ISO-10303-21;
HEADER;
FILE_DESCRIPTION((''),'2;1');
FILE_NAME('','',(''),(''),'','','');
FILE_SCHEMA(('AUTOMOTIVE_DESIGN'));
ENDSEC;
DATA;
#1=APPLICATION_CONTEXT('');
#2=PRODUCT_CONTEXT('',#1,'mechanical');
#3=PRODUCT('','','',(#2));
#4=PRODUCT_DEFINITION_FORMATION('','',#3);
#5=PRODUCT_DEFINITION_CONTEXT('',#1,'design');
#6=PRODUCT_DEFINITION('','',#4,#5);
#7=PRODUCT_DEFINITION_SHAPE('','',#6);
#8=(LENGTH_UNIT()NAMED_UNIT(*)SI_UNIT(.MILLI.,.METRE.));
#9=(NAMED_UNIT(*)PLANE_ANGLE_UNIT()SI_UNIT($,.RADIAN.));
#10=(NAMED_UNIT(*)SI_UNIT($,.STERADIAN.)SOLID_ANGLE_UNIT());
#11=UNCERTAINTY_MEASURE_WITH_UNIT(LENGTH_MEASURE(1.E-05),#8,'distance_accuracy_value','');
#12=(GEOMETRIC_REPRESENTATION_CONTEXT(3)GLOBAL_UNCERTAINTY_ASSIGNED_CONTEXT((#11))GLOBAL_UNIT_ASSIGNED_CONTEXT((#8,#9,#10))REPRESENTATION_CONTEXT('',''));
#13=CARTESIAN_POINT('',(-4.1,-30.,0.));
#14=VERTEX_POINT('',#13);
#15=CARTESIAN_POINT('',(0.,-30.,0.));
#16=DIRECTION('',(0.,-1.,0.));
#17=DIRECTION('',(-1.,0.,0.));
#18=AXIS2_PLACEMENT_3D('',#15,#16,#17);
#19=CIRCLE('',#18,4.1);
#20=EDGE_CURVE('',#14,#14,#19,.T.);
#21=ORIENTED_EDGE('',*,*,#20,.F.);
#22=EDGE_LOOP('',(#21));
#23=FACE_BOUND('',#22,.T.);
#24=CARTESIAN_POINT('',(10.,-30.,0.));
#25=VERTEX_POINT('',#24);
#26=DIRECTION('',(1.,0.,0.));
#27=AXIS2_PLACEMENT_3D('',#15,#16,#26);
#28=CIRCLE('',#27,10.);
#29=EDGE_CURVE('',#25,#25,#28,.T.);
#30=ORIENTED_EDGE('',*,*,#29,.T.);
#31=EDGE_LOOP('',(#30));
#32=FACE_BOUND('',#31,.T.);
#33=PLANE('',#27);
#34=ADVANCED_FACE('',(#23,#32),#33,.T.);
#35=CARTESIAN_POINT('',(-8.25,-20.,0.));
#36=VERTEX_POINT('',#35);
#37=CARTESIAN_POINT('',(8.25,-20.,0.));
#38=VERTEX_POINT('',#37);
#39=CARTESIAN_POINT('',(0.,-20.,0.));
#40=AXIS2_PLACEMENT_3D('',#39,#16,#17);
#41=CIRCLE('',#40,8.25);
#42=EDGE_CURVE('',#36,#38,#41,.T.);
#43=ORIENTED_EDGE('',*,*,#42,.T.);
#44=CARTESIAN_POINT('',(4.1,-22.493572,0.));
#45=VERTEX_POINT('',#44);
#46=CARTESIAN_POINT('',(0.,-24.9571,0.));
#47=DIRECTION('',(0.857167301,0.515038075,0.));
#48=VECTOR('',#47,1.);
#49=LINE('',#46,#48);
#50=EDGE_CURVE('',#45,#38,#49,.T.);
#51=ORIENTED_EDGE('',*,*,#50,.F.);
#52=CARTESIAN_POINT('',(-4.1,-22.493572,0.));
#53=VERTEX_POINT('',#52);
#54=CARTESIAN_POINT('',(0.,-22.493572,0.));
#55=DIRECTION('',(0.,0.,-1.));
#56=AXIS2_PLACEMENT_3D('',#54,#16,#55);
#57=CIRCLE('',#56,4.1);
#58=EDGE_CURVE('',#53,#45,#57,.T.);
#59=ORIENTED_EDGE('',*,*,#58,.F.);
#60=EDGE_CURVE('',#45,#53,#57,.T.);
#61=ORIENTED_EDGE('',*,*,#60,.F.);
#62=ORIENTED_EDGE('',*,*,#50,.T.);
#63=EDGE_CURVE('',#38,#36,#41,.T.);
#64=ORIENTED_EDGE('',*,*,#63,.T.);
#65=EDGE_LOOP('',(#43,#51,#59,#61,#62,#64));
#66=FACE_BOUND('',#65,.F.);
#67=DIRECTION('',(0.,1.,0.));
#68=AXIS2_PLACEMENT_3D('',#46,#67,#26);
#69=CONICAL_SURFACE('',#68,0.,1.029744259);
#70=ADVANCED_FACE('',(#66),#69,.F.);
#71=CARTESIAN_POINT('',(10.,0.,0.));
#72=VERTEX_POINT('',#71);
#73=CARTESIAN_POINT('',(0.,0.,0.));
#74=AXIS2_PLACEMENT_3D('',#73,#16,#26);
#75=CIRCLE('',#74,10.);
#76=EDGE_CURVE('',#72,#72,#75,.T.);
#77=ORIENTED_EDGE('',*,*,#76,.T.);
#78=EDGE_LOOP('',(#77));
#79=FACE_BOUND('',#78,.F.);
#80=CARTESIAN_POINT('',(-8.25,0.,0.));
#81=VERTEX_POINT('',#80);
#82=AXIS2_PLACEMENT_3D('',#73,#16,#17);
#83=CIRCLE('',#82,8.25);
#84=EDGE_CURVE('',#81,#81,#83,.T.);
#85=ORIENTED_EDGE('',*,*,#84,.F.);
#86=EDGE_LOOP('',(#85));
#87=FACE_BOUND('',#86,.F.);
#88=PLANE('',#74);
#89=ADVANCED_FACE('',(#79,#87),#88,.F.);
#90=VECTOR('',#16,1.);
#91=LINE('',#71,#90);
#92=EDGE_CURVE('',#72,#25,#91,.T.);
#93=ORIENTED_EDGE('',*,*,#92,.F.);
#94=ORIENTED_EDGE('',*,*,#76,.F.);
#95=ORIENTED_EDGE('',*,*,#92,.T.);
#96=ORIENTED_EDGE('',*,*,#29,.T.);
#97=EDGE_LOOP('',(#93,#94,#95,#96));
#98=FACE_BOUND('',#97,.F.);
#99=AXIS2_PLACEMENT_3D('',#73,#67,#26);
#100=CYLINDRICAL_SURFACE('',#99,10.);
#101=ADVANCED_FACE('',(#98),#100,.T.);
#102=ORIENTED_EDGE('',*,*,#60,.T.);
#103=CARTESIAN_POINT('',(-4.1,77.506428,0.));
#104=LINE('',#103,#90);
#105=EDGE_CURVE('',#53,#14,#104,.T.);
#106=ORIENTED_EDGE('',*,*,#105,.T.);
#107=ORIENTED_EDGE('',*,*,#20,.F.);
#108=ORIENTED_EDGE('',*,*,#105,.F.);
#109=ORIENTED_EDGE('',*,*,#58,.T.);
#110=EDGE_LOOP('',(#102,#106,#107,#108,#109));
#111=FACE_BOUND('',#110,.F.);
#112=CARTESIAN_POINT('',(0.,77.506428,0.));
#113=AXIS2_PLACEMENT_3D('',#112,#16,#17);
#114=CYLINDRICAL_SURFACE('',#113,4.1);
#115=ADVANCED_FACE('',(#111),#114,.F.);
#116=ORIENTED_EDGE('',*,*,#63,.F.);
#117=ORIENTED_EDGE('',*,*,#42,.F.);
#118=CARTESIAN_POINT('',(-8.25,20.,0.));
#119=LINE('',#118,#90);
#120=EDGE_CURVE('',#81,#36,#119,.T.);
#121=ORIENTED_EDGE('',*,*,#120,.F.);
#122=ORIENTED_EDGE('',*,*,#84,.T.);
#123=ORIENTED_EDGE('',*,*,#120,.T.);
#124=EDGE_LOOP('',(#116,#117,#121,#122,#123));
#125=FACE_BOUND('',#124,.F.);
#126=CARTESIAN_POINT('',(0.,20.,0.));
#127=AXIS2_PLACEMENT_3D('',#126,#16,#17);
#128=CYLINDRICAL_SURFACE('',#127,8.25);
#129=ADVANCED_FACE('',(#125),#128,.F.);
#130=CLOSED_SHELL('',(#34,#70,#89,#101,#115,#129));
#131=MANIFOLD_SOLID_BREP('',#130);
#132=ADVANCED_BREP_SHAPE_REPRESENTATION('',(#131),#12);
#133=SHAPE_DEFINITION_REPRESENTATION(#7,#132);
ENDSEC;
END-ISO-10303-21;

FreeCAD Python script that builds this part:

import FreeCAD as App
import Part
import Sketcher

doc = App.newDocument("Part")
body = doc.addObject("PartDesign::Body", "Body")

# Sketch on XZ plane
sketch1 = body.newObject("Sketcher::SketchObject", "Sketch")
sketch1.AttachmentSupport = (doc.getObject("XZ_Plane"), [""])
sketch1.MapMode = "FlatFace"
sketch1.addGeometry(Part.Circle(App.Vector(0, 0, 0), App.Vector(0, 0, 1), 10), False)
sketch1.addConstraint([
    Sketcher.Constraint("Coincident", 0, 3, -1, 1),
    Sketcher.Constraint("Diameter", 0, 20.0),
])
pad1 = body.newObject("PartDesign::Pad", "Pad")
pad1.Profile = sketch1
pad1.Length = 30

# Sketch on XZ plane
sketch2 = body.newObject("Sketcher::SketchObject", "Sketch001")
sketch2.AttachmentSupport = (doc.getObject("XZ_Plane"), [""])
sketch2.MapMode = "FlatFace"
sketch2.addGeometry(Part.Circle(App.Vector(0, 0, 0), App.Vector(0, 0, 1), 8), False)
sketch2.addConstraint([
    Sketcher.Constraint("Coincident", 0, 3, -1, 1),
    Sketcher.Constraint("Diameter", 0, 16.5),
])
doc.recompute()
hole = body.newObject("PartDesign::Hole", "Hole")
hole.Profile = sketch2
hole.ThreadType = "None"
hole.Diameter = 16.5
hole.DepthType = "Dimension"
hole.Depth = 20
hole.DrillPoint = "Angled"
hole.DrillPointAngle = 118
hole.Reversed = True

# Sketch on XZ plane
sketch3 = body.newObject("Sketcher::SketchObject", "Sketch002")
sketch3.AttachmentSupport = (doc.getObject("XZ_Plane"), [""])
sketch3.MapMode = "FlatFace"
sketch3.AttachmentOffset = App.Placement(App.Vector(0, 0, 22.493572), App.Rotation())
sketch3.addGeometry(Part.Circle(App.Vector(0, 0, 0), App.Vector(0, 0, 1), 4.1), False)
sketch3.addConstraint([
    Sketcher.Constraint("Coincident", 0, 3, -1, 1),
    Sketcher.Constraint("Diameter", 0, 8.2),
])
doc.recompute()
hole2 = body.newObject("PartDesign::Hole", "Hole001")
hole2.Profile = sketch3
hole2.ThreadType = "None"
hole2.Diameter = 8.2
hole2.DepthType = "Dimension"
hole2.Depth = 100
hole2.DrillPoint = "Angled"
hole2.DrillPointAngle = 118
hole2.Reversed = True

doc.recompute()
